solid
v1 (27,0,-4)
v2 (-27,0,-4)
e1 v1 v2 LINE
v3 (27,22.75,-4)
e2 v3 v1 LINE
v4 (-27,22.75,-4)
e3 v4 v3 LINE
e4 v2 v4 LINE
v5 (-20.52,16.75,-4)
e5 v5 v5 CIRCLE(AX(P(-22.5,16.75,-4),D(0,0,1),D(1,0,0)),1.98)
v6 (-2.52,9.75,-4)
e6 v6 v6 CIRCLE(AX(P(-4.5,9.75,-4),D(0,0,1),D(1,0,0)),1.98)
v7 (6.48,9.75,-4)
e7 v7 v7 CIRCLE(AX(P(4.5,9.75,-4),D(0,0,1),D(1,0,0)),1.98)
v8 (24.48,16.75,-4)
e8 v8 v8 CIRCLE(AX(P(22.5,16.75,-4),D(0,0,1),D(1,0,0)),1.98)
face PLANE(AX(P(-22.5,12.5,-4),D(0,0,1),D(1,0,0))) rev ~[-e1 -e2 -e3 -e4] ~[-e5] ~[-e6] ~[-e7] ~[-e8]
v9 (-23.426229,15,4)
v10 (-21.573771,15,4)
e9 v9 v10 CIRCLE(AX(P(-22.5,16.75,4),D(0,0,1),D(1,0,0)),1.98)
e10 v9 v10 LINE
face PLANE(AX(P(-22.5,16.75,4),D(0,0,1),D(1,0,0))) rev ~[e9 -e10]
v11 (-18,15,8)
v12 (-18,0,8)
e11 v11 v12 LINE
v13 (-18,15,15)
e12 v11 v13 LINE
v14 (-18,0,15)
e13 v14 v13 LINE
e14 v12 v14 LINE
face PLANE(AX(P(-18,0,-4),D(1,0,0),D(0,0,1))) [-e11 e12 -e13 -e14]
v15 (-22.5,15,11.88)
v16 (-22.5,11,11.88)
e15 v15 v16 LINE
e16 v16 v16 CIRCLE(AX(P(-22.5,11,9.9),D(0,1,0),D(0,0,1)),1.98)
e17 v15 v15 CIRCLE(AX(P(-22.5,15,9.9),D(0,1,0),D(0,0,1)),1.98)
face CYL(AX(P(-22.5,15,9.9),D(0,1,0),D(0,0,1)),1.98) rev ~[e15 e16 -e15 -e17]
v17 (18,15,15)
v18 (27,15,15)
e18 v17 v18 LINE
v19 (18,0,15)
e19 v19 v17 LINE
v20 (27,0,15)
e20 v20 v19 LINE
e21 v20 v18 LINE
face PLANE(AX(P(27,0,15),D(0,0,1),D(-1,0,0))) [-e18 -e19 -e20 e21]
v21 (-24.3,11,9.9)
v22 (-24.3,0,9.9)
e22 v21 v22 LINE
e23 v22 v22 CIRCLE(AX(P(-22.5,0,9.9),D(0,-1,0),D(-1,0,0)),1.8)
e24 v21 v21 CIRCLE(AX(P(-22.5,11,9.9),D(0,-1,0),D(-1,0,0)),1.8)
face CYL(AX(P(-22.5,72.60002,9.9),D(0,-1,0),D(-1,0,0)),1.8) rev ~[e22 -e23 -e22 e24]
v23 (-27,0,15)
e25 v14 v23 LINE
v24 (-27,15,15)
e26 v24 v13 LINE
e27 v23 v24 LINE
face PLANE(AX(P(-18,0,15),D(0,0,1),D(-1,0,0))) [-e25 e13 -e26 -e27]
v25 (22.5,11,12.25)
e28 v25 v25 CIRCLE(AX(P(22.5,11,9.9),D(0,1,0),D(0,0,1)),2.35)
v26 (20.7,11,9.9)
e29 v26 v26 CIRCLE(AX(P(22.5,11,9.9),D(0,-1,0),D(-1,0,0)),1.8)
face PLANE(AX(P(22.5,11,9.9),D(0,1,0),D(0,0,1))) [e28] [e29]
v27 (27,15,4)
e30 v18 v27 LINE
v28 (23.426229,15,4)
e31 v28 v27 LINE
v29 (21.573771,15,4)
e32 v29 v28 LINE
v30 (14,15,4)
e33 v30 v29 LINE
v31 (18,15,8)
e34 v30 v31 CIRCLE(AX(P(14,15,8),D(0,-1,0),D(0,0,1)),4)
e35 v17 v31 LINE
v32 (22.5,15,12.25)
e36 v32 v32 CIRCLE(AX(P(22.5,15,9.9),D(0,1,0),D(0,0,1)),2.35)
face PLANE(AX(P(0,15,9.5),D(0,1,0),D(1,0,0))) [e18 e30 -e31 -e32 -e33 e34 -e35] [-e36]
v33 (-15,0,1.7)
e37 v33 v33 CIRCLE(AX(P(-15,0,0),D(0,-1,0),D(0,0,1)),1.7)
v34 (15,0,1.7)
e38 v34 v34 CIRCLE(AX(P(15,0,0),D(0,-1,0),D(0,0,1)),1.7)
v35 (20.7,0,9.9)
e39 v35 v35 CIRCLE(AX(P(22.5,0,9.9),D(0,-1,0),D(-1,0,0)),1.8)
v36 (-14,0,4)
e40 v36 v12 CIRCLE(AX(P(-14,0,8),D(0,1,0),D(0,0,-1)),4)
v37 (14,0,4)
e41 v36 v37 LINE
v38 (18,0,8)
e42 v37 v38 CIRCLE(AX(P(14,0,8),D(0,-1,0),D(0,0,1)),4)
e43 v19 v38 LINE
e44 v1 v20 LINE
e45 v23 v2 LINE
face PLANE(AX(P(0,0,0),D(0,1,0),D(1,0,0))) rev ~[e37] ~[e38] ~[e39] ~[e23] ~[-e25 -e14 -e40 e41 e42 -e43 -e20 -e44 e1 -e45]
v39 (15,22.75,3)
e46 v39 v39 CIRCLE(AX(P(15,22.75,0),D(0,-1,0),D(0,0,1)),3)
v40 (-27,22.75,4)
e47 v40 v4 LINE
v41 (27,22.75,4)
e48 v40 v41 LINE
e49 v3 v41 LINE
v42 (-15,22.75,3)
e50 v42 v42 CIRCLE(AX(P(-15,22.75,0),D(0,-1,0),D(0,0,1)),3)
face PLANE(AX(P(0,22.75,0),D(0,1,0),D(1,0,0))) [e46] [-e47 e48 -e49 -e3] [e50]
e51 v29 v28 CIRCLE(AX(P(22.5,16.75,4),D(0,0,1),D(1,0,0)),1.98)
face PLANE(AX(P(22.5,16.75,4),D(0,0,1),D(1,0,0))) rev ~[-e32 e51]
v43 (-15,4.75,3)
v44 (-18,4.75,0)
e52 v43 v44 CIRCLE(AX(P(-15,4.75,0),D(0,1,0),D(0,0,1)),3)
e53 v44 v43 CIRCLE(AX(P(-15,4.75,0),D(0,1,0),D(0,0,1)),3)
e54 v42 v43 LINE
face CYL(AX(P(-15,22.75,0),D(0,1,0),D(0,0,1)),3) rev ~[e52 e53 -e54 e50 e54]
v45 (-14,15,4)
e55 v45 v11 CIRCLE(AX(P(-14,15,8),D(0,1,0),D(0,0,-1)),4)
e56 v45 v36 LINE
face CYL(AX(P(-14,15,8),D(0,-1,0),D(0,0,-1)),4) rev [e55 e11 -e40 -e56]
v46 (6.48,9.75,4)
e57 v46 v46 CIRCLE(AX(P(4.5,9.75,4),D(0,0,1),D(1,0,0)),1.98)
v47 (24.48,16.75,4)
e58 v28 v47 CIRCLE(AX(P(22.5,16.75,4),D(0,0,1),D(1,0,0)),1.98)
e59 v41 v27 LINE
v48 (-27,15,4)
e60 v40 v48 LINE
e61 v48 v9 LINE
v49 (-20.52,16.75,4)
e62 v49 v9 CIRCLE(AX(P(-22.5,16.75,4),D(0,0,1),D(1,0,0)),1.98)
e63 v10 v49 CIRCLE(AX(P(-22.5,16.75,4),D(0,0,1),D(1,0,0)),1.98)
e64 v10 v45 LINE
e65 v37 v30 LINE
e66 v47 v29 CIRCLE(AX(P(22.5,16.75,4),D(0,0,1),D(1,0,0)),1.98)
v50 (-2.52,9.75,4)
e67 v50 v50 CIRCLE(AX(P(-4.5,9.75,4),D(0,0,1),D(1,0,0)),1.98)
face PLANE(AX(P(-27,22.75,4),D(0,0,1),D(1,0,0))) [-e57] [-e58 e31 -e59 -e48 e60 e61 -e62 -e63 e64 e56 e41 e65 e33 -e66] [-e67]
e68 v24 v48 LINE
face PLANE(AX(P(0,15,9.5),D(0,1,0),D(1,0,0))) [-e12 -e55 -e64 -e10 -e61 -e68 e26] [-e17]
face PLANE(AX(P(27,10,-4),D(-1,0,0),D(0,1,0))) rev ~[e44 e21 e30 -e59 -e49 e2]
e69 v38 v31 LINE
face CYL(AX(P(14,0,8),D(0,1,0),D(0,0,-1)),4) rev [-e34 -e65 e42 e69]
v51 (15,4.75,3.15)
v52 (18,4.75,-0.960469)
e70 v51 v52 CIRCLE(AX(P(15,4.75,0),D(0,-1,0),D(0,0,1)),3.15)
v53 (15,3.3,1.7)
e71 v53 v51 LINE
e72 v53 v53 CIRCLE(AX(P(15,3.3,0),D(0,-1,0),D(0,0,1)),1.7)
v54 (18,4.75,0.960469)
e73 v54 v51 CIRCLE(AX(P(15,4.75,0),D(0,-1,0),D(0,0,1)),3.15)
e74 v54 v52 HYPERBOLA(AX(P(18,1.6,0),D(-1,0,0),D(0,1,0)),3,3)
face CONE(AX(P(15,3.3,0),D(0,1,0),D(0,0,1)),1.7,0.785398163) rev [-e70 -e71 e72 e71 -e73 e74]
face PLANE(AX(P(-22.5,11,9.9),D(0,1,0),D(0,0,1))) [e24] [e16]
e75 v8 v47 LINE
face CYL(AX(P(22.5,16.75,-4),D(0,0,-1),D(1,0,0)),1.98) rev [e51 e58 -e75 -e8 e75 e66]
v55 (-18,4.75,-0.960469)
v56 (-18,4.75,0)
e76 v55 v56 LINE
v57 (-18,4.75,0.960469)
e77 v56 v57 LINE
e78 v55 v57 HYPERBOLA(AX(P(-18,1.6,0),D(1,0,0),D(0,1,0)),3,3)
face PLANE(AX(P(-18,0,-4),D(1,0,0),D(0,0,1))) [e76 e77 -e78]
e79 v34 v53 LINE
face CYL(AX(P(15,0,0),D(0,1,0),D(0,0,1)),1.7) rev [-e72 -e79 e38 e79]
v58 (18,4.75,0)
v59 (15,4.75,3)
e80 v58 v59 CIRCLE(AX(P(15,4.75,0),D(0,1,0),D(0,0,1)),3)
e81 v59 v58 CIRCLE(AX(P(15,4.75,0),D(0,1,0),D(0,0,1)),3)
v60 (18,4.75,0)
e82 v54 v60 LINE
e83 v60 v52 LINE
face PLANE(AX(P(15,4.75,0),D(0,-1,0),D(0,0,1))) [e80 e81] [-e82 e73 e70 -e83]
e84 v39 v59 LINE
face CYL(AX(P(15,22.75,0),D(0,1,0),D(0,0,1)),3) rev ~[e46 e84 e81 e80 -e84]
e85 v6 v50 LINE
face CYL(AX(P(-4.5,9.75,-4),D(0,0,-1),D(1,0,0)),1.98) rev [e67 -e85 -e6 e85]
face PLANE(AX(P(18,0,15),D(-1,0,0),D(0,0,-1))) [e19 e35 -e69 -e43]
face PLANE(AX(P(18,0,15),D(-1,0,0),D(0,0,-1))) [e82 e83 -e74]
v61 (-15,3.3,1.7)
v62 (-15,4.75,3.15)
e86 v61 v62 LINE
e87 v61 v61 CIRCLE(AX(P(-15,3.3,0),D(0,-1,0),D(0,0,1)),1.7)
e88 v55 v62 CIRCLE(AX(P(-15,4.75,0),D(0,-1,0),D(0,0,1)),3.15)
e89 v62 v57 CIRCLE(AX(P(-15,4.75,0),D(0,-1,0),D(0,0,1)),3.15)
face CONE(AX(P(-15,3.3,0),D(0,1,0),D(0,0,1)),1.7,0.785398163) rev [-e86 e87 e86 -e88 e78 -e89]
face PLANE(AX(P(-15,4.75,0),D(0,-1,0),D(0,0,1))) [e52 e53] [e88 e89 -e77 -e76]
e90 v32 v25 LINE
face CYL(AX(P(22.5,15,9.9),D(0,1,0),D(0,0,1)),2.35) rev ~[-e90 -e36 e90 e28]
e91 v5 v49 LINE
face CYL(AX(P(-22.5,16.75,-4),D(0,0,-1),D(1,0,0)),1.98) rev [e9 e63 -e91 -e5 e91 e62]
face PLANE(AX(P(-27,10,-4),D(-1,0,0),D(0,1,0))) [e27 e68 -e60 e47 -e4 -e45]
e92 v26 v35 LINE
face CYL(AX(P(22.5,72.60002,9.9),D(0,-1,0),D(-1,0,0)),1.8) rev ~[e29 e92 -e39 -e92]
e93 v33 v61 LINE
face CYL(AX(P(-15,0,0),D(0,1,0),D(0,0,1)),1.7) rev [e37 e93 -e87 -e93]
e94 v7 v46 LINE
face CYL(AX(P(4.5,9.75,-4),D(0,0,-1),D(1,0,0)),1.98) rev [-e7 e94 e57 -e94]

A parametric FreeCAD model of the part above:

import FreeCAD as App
import Part
import Sketcher

V = App.Vector
Q = App.Units.Quantity


def edges_at(feature, points):
    """Names of the edges that pass closest to the given points."""
    edges = feature.Shape.Edges
    near = lambda p: min(range(len(edges)), key=lambda i: edges[i].distToShape(Part.Vertex(*p))[0])
    return sorted({f"Edge{near(p) + 1}" for p in points})

doc = App.newDocument("Part")
params = doc.addObject("Spreadsheet::Sheet", "Params")
for row, (alias, value) in enumerate([
    ("sketch1_width", "38 mm"),
    ("sketch1_height", "8 mm"),
    ("pad1_length", "22.75 mm"),
    ("sketch2_width", "9 mm"),
    ("sketch2_height", "5 mm"),
    ("pad2_length", "19 mm"),
    ("sketch3_diameter", "6 mm"),
    ("pocket1_length", "18 mm"),
    ("sketch4_width", "3.3 mm"),
    ("sketch4_height", "1.7 mm"),
    ("sketch4_width2", "4.75 mm"),
    ("groove_angle", "360 deg"),
    ("linearpattern_pitch", "30 mm"),
    ("fillet_radius", "2 mm"),
    ("sketch5_width", "9 mm"),
    ("sketch5_height", "19 mm"),
    ("pad3_length", "22.75 mm"),
    ("sketch6_diameter", "3.96 mm"),
    ("pocket2_length", "8 mm"),
    ("sketch7_width", "54 mm"),
    ("sketch7_height", "11 mm"),
    ("pocket3_length", "7.75 mm"),
    ("sketch8_diameter", "4.7 mm"),
    ("sketch8_diameter2", "3.96 mm"),
    ("pocket4_length", "4 mm"),
    ("sketch9_diameter", "3.6 mm"),
    ("hole_diameter", "3.6 mm"),
    ("fillet2_radius", "4 mm"),
], start=1):
    params.set(f"A{row}", alias)
    params.set(f"B{row}", "=" + value)
    params.setAlias(f"B{row}", alias)

body = doc.addObject("PartDesign::Body", "Body")

sketch1 = body.newObject("Sketcher::SketchObject", "Sketch")
sketch1.AttachmentSupport = (doc.getObject("XZ_Plane"), [""])
sketch1.MapMode = "FlatFace"
sketch1.addGeometry([
    Part.LineSegment(V(-19, -4, 0), V(-19, 4, 0)),
    Part.LineSegment(V(-19, 4, 0), V(19, 4, 0)),
    Part.LineSegment(V(19, 4, 0), V(19, -4, 0)),
    Part.LineSegment(V(19, -4, 0), V(-19, -4, 0)),
], False)
sketch1.addConstraint([
    Sketcher.Constraint("Coincident", 0, 2, 1, 1),
    Sketcher.Constraint("Coincident", 1, 2, 2, 1),
    Sketcher.Constraint("Coincident", 2, 2, 3, 1),
    Sketcher.Constraint("Coincident", 3, 2, 0, 1),
    Sketcher.Constraint("Vertical", 0),
    Sketcher.Constraint("Horizontal", 1),
    Sketcher.Constraint("Vertical", 2),
    Sketcher.Constraint("Horizontal", 3),
    Sketcher.Constraint("Symmetric", 0, 2, 2, 2, -1, 1),
    Sketcher.Constraint("DistanceX", 1, 1, 1, 2, 38.0),
    Sketcher.Constraint("DistanceY", 0, 1, 0, 2, 8.0),
])
sketch1.setExpression("Constraints[9]", "Params.sketch1_width")
sketch1.setExpression("Constraints[10]", "Params.sketch1_height")
pad1 = body.newObject("PartDesign::Pad", "Pad")
pad1.Profile = sketch1
pad1.setExpression("Length", "Params.pad1_length")
pad1.Reversed = True

sketch2 = body.newObject("Sketcher::SketchObject", "Sketch001")
sketch2.AttachmentSupport = (doc.getObject("XY_Plane"), [""])
sketch2.MapMode = "FlatFace"
sketch2.AttachmentOffset = App.Placement(V(0, 0, -4), App.Rotation())
sketch2.addGeometry([
    Part.LineSegment(V(-27, 15, 0), V(-27, 10, 0)),
    Part.LineSegment(V(-27, 10, 0), V(-18, 10, 0)),
    Part.LineSegment(V(-18, 10, 0), V(-18, 15, 0)),
    Part.LineSegment(V(-18, 15, 0), V(-27, 15, 0)),
    Part.LineSegment(V(18, 15, 0), V(18, 10, 0)),
    Part.LineSegment(V(18, 10, 0), V(27, 10, 0)),
    Part.LineSegment(V(27, 10, 0), V(27, 15, 0)),
    Part.LineSegment(V(27, 15, 0), V(18, 15, 0)),
], False)
sketch2.addConstraint([
    Sketcher.Constraint("Coincident", 0, 2, 1, 1),
    Sketcher.Constraint("Coincident", 1, 2, 2, 1),
    Sketcher.Constraint("Coincident", 2, 2, 3, 1),
    Sketcher.Constraint("Coincident", 3, 2, 0, 1),
    Sketcher.Constraint("Coincident", 4, 2, 5, 1),
    Sketcher.Constraint("Coincident", 5, 2, 6, 1),
    Sketcher.Constraint("Coincident", 6, 2, 7, 1),
    Sketcher.Constraint("Coincident", 7, 2, 4, 1),
    Sketcher.Constraint("Vertical", 0),
    Sketcher.Constraint("Horizontal", 1),
    Sketcher.Constraint("Vertical", 2),
    Sketcher.Constraint("Horizontal", 3),
    Sketcher.Constraint("Vertical", 4),
    Sketcher.Constraint("Horizontal", 5),
    Sketcher.Constraint("Vertical", 6),
    Sketcher.Constraint("Horizontal", 7),
    Sketcher.Constraint("Symmetric", 1, 2, 4, 2, -2),
    Sketcher.Constraint("Symmetric", 3, 2, 6, 2, -2),
    Sketcher.Constraint("DistanceX", 1, 1, 1, 2, 9.0),
    Sketcher.Constraint("DistanceY", 0, 2, 0, 1, 5.0),
    Sketcher.Constraint("DistanceX", 0, 2, -1, 1, 27.0),
    Sketcher.Constraint("DistanceY", -1, 1, 0, 2, 10.0),
])
sketch2.setExpression("Constraints[18]", "Params.sketch2_width")
sketch2.setExpression("Constraints[19]", "Params.sketch2_height")
pad2 = body.newObject("PartDesign::Pad", "Pad001")
pad2.Profile = sketch2
pad2.setExpression("Length", "Params.pad2_length")

sketch3 = body.newObject("Sketcher::SketchObject", "Sketch002")
sketch3.AttachmentSupport = (doc.getObject("XZ_Plane"), [""])
sketch3.MapMode = "FlatFace"
sketch3.AttachmentOffset = App.Placement(V(0, 0, -22.75), App.Rotation())
sketch3.addGeometry([
    Part.Circle(V(-15, 0, 0), V(0, 0, 1), 3),
    Part.Circle(V(15, 0, 0), V(0, 0, 1), 3),
], False)
sketch3.addConstraint([
    Sketcher.Constraint("Equal", 0, 1),
    Sketcher.Constraint("Symmetric", 0, 3, 1, 3, -1, 1),
    Sketcher.Constraint("PointOnObject", 0, 3, -1),
    Sketcher.Constraint("Diameter", 0, 6.0),
    Sketcher.Constraint("DistanceX", 0, 3, -1, 1, 15.0),
])
sketch3.setExpression("Constraints[3]", "Params.sketch3_diameter")
pocket1 = body.newObject("PartDesign::Pocket", "Pocket")
pocket1.Profile = sketch3
pocket1.setExpression("Length", "Params.pocket1_length")
pocket1.Reversed = True

sketch4 = body.newObject("Sketcher::SketchObject", "Sketch003")
sketch4.AttachmentSupport = (doc.getObject("YZ_Plane"), [""])
sketch4.MapMode = "FlatFace"
sketch4.AttachmentOffset = App.Placement(V(0, 0, -15), App.Rotation())
sketch4.addGeometry([
    Part.LineSegment(V(0, 0, 0), V(4.75, 0, 0)),
    Part.LineSegment(V(4.75, 0, 0), V(4.75, 3.15, 0)),
    Part.LineSegment(V(4.75, 3.15, 0), V(3.3, 1.7, 0)),
    Part.LineSegment(V(3.3, 1.7, 0), V(0, 1.7, 0)),
    Part.LineSegment(V(0, 1.7, 0), V(0, 0, 0)),
], False)
sketch4.addConstraint([
    Sketcher.Constraint("Coincident", 0, 2, 1, 1),
    Sketcher.Constraint("Coincident", 1, 2, 2, 1),
    Sketcher.Constraint("Coincident", 2, 2, 3, 1),
    Sketcher.Constraint("Coincident", 3, 2, 4, 1),
    Sketcher.Constraint("Coincident", 4, 2, 0, 1),
    Sketcher.Constraint("Horizontal", 0),
    Sketcher.Constraint("Vertical", 1),
    Sketcher.Constraint("Horizontal", 3),
    Sketcher.Constraint("Vertical", 4),
    Sketcher.Constraint("Coincident", 4, 2, -1, 1),
    Sketcher.Constraint("Angle", 2, Q("-135 deg")),
    Sketcher.Constraint("DistanceX", 3, 2, 3, 1, 3.3),
    Sketcher.Constraint("DistanceY", 4, 2, 4, 1, 1.7),
    Sketcher.Constraint("DistanceX", 0, 1, 0, 2, 4.75),
])
sketch4.setExpression("Constraints[11]", "Params.sketch4_width")
sketch4.setExpression("Constraints[12]", "Params.sketch4_height")
sketch4.setExpression("Constraints[13]", "Params.sketch4_width2")
groove = body.newObject("PartDesign::Groove", "Groove")
groove.Profile = sketch4
groove.ReferenceAxis = (sketch4, ["H_Axis"])
groove.setExpression("Angle", "Params.groove_angle")
doc.recompute()

linearpattern = body.newObject("PartDesign::LinearPattern", "LinearPattern")
linearpattern.Originals = [groove]
linearpattern.Direction = (doc.getObject("X_Axis"), [""])
linearpattern.Mode = "offset"
linearpattern.setExpression("Offset", "Params.linearpattern_pitch")
linearpattern.Occurrences = 2
body.Tip = linearpattern
doc.recompute()

fillet = body.newObject("PartDesign::Fillet", "Fillet")
fillet.Base = (linearpattern, edges_at(linearpattern, [
    (-27, 12.5, 15),
    (-18, 12.5, 15),
    (27, 12.5, 15),
    (18, 12.5, 15),
]))
fillet.setExpression("Radius", "Params.fillet_radius")

sketch5 = body.newObject("Sketcher::SketchObject", "Sketch004")
sketch5.AttachmentSupport = (doc.getObject("XZ_Plane"), [""])
sketch5.MapMode = "FlatFace"
sketch5.addGeometry([
    Part.LineSegment(V(18, -4, 0), V(27, -4, 0)),
    Part.LineSegment(V(27, -4, 0), V(27, 15, 0)),
    Part.LineSegment(V(27, 15, 0), V(18, 15, 0)),
    Part.LineSegment(V(18, 15, 0), V(18, -4, 0)),
    Part.LineSegment(V(-27, -4, 0), V(-18, -4, 0)),
    Part.LineSegment(V(-18, -4, 0), V(-18, 15, 0)),
    Part.LineSegment(V(-18, 15, 0), V(-27, 15, 0)),
    Part.LineSegment(V(-27, 15, 0), V(-27, -4, 0)),
], False)
sketch5.addConstraint([
    Sketcher.Constraint("Coincident", 0, 2, 1, 1),
    Sketcher.Constraint("Coincident", 1, 2, 2, 1),
    Sketcher.Constraint("Coincident", 2, 2, 3, 1),
    Sketcher.Constraint("Coincident", 3, 2, 0, 1),
    Sketcher.Constraint("Coincident", 4, 2, 5, 1),
    Sketcher.Constraint("Coincident", 5, 2, 6, 1),
    Sketcher.Constraint("Coincident", 6, 2, 7, 1),
    Sketcher.Constraint("Coincident", 7, 2, 4, 1),
    Sketcher.Constraint("Horizontal", 0),
    Sketcher.Constraint("Vertical", 1),
    Sketcher.Constraint("Horizontal", 2),
    Sketcher.Constraint("Vertical", 3),
    Sketcher.Constraint("Horizontal", 4),
    Sketcher.Constraint("Vertical", 5),
    Sketcher.Constraint("Horizontal", 6),
    Sketcher.Constraint("Vertical", 7),
    Sketcher.Constraint("Symmetric", 3, 2, 4, 2, -2),
    Sketcher.Constraint("Symmetric", 1, 2, 6, 2, -2),
    Sketcher.Constraint("DistanceX", 0, 1, 0, 2, 9.0),
    Sketcher.Constraint("DistanceY", 1, 1, 1, 2, 19.0),
    Sketcher.Constraint("DistanceX", -1, 1, 0, 2, 27.0),
    Sketcher.Constraint("DistanceY", 0, 2, -1, 1, 4.0),
])
sketch5.setExpression("Constraints[18]", "Params.sketch5_width")
sketch5.setExpression("Constraints[19]", "Params.sketch5_height")
pad3 = body.newObject("PartDesign::Pad", "Pad002")
pad3.Profile = sketch5
pad3.setExpression("Length", "Params.pad3_length")
pad3.Reversed = True

sketch6 = body.newObject("Sketcher::SketchObject", "Sketch005")
sketch6.AttachmentSupport = (doc.getObject("XY_Plane"), [""])
sketch6.MapMode = "FlatFace"
sketch6.AttachmentOffset = App.Placement(V(0, 0, -4), App.Rotation())
sketch6.addGeometry([
    Part.Circle(V(-22.5, 16.75, 0), V(0, 0, 1), 1.98),
    Part.Circle(V(-4.5, 9.75, 0), V(0, 0, 1), 1.98),
    Part.Circle(V(4.5, 9.75, 0), V(0, 0, 1), 1.98),
    Part.Circle(V(22.5, 16.75, 0), V(0, 0, 1), 1.98),
], False)
sketch6.addConstraint([
    Sketcher.Constraint("Equal", 0, 1),
    Sketcher.Constraint("Equal", 1, 2),
    Sketcher.Constraint("Equal", 2, 3),
    Sketcher.Constraint("Symmetric", 1, 3, 2, 3, -2),
    Sketcher.Constraint("Symmetric", 0, 3, 3, 3, -2),
    Sketcher.Constraint("Diameter", 0, 3.96),
    Sketcher.Constraint("DistanceX", 0, 3, 1, 3, 18.0),
    Sketcher.Constraint("DistanceY", 1, 3, 0, 3, 7.0),
    Sketcher.Constraint("DistanceX", 1, 3, 2, 3, 9.0),
    Sketcher.Constraint("DistanceY", -1, 1, 0, 3, 16.75),
])
sketch6.setExpression("Constraints[5]", "Params.sketch6_diameter")
pocket2 = body.newObject("PartDesign::Pocket", "Pocket001")
pocket2.Profile = sketch6
pocket2.setExpression("Length", "Params.pocket2_length")
pocket2.Reversed = True

sketch7 = body.newObject("Sketcher::SketchObject", "Sketch006")
sketch7.AttachmentSupport = (doc.getObject("XZ_Plane"), [""])
sketch7.MapMode = "FlatFace"
sketch7.AttachmentOffset = App.Placement(V(0, 0, -22.75), App.Rotation())
sketch7.addGeometry([
    Part.LineSegment(V(-27, 4, 0), V(-27, 15, 0)),
    Part.LineSegment(V(-27, 15, 0), V(27, 15, 0)),
    Part.LineSegment(V(27, 15, 0), V(27, 4, 0)),
    Part.LineSegment(V(27, 4, 0), V(-27, 4, 0)),
], False)
sketch7.addConstraint([
    Sketcher.Constraint("Coincident", 0, 2, 1, 1),
    Sketcher.Constraint("Coincident", 1, 2, 2, 1),
    Sketcher.Constraint("Coincident", 2, 2, 3, 1),
    Sketcher.Constraint("Coincident", 3, 2, 0, 1),
    Sketcher.Constraint("Vertical", 0),
    Sketcher.Constraint("Horizontal", 1),
    Sketcher.Constraint("Vertical", 2),
    Sketcher.Constraint("Horizontal", 3),
    Sketcher.Constraint("DistanceX", 1, 1, 1, 2, 54.0),
    Sketcher.Constraint("DistanceY", 0, 1, 0, 2, 11.0),
    Sketcher.Constraint("DistanceX", 0, 2, -1, 1, 27.0),
    Sketcher.Constraint("DistanceY", -1, 1, 0, 2, 15.0),
])
sketch7.setExpression("Constraints[8]", "Params.sketch7_width")
sketch7.setExpression("Constraints[9]", "Params.sketch7_height")
pocket3 = body.newObject("PartDesign::Pocket", "Pocket002")
pocket3.Profile = sketch7
pocket3.setExpression("Length", "Params.pocket3_length")
pocket3.Reversed = True

sketch8 = body.newObject("Sketcher::SketchObject", "Sketch007")
sketch8.AttachmentSupport = (doc.getObject("XZ_Plane"), [""])
sketch8.MapMode = "FlatFace"
sketch8.AttachmentOffset = App.Placement(V(0, 0, -15), App.Rotation())
sketch8.addGeometry([
    Part.Circle(V(-22.5, 9.9, 0), V(0, 0, 1), 1.98),
    Part.Circle(V(22.5, 9.9, 0), V(0, 0, 1), 2.35),
], False)
sketch8.addConstraint([
    Sketcher.Constraint("Symmetric", 0, 3, 1, 3, -2),
    Sketcher.Constraint("Diameter", 1, 4.7),
    Sketcher.Constraint("Diameter", 0, 3.96),
    Sketcher.Constraint("DistanceX", 0, 3, 1, 3, 45.0),
    Sketcher.Constraint("DistanceY", -1, 1, 0, 3, 9.9),
])
sketch8.setExpression("Constraints[1]", "Params.sketch8_diameter")
sketch8.setExpression("Constraints[2]", "Params.sketch8_diameter2")
pocket4 = body.newObject("PartDesign::Pocket", "Pocket003")
pocket4.Profile = sketch8
pocket4.setExpression("Length", "Params.pocket4_length")
pocket4.Reversed = True

sketch9 = body.newObject("Sketcher::SketchObject", "Sketch008")
sketch9.AttachmentSupport = (doc.getObject("XZ_Plane"), [""])
sketch9.MapMode = "FlatFace"
sketch9.AttachmentOffset = App.Placement(V(0, 0, -11), App.Rotation())
sketch9.addGeometry([
    Part.Circle(V(-22.5, 9.9, 0), V(0, 0, 1), 1.8),
    Part.Circle(V(22.5, 9.9, 0), V(0, 0, 1), 1.8),
], False)
sketch9.addConstraint([
    Sketcher.Constraint("Equal", 0, 1),
    Sketcher.Constraint("Symmetric", 0, 3, 1, 3, -2),
    Sketcher.Constraint("Diameter", 0, 3.6),
    Sketcher.Constraint("DistanceX", 0, 3, 1, 3, 45.0),
    Sketcher.Constraint("DistanceY", -1, 1, 0, 3, 9.9),
])
sketch9.setExpression("Constraints[2]", "Params.sketch9_diameter")
doc.recompute()
hole = body.newObject("PartDesign::Hole", "Hole")
hole.Profile = sketch9
hole.ThreadType = "None"
hole.setExpression("Diameter", "Params.hole_diameter")
hole.DepthType = "ThroughAll"
hole.Reversed = True
doc.recompute()

fillet2 = body.newObject("PartDesign::Fillet", "Fillet001")
fillet2.Base = (hole, edges_at(hole, [(-18, 7.5, 4), (18, 7.5, 4)]))
fillet2.setExpression("Radius", "Params.fillet2_radius")

doc.recompute()
